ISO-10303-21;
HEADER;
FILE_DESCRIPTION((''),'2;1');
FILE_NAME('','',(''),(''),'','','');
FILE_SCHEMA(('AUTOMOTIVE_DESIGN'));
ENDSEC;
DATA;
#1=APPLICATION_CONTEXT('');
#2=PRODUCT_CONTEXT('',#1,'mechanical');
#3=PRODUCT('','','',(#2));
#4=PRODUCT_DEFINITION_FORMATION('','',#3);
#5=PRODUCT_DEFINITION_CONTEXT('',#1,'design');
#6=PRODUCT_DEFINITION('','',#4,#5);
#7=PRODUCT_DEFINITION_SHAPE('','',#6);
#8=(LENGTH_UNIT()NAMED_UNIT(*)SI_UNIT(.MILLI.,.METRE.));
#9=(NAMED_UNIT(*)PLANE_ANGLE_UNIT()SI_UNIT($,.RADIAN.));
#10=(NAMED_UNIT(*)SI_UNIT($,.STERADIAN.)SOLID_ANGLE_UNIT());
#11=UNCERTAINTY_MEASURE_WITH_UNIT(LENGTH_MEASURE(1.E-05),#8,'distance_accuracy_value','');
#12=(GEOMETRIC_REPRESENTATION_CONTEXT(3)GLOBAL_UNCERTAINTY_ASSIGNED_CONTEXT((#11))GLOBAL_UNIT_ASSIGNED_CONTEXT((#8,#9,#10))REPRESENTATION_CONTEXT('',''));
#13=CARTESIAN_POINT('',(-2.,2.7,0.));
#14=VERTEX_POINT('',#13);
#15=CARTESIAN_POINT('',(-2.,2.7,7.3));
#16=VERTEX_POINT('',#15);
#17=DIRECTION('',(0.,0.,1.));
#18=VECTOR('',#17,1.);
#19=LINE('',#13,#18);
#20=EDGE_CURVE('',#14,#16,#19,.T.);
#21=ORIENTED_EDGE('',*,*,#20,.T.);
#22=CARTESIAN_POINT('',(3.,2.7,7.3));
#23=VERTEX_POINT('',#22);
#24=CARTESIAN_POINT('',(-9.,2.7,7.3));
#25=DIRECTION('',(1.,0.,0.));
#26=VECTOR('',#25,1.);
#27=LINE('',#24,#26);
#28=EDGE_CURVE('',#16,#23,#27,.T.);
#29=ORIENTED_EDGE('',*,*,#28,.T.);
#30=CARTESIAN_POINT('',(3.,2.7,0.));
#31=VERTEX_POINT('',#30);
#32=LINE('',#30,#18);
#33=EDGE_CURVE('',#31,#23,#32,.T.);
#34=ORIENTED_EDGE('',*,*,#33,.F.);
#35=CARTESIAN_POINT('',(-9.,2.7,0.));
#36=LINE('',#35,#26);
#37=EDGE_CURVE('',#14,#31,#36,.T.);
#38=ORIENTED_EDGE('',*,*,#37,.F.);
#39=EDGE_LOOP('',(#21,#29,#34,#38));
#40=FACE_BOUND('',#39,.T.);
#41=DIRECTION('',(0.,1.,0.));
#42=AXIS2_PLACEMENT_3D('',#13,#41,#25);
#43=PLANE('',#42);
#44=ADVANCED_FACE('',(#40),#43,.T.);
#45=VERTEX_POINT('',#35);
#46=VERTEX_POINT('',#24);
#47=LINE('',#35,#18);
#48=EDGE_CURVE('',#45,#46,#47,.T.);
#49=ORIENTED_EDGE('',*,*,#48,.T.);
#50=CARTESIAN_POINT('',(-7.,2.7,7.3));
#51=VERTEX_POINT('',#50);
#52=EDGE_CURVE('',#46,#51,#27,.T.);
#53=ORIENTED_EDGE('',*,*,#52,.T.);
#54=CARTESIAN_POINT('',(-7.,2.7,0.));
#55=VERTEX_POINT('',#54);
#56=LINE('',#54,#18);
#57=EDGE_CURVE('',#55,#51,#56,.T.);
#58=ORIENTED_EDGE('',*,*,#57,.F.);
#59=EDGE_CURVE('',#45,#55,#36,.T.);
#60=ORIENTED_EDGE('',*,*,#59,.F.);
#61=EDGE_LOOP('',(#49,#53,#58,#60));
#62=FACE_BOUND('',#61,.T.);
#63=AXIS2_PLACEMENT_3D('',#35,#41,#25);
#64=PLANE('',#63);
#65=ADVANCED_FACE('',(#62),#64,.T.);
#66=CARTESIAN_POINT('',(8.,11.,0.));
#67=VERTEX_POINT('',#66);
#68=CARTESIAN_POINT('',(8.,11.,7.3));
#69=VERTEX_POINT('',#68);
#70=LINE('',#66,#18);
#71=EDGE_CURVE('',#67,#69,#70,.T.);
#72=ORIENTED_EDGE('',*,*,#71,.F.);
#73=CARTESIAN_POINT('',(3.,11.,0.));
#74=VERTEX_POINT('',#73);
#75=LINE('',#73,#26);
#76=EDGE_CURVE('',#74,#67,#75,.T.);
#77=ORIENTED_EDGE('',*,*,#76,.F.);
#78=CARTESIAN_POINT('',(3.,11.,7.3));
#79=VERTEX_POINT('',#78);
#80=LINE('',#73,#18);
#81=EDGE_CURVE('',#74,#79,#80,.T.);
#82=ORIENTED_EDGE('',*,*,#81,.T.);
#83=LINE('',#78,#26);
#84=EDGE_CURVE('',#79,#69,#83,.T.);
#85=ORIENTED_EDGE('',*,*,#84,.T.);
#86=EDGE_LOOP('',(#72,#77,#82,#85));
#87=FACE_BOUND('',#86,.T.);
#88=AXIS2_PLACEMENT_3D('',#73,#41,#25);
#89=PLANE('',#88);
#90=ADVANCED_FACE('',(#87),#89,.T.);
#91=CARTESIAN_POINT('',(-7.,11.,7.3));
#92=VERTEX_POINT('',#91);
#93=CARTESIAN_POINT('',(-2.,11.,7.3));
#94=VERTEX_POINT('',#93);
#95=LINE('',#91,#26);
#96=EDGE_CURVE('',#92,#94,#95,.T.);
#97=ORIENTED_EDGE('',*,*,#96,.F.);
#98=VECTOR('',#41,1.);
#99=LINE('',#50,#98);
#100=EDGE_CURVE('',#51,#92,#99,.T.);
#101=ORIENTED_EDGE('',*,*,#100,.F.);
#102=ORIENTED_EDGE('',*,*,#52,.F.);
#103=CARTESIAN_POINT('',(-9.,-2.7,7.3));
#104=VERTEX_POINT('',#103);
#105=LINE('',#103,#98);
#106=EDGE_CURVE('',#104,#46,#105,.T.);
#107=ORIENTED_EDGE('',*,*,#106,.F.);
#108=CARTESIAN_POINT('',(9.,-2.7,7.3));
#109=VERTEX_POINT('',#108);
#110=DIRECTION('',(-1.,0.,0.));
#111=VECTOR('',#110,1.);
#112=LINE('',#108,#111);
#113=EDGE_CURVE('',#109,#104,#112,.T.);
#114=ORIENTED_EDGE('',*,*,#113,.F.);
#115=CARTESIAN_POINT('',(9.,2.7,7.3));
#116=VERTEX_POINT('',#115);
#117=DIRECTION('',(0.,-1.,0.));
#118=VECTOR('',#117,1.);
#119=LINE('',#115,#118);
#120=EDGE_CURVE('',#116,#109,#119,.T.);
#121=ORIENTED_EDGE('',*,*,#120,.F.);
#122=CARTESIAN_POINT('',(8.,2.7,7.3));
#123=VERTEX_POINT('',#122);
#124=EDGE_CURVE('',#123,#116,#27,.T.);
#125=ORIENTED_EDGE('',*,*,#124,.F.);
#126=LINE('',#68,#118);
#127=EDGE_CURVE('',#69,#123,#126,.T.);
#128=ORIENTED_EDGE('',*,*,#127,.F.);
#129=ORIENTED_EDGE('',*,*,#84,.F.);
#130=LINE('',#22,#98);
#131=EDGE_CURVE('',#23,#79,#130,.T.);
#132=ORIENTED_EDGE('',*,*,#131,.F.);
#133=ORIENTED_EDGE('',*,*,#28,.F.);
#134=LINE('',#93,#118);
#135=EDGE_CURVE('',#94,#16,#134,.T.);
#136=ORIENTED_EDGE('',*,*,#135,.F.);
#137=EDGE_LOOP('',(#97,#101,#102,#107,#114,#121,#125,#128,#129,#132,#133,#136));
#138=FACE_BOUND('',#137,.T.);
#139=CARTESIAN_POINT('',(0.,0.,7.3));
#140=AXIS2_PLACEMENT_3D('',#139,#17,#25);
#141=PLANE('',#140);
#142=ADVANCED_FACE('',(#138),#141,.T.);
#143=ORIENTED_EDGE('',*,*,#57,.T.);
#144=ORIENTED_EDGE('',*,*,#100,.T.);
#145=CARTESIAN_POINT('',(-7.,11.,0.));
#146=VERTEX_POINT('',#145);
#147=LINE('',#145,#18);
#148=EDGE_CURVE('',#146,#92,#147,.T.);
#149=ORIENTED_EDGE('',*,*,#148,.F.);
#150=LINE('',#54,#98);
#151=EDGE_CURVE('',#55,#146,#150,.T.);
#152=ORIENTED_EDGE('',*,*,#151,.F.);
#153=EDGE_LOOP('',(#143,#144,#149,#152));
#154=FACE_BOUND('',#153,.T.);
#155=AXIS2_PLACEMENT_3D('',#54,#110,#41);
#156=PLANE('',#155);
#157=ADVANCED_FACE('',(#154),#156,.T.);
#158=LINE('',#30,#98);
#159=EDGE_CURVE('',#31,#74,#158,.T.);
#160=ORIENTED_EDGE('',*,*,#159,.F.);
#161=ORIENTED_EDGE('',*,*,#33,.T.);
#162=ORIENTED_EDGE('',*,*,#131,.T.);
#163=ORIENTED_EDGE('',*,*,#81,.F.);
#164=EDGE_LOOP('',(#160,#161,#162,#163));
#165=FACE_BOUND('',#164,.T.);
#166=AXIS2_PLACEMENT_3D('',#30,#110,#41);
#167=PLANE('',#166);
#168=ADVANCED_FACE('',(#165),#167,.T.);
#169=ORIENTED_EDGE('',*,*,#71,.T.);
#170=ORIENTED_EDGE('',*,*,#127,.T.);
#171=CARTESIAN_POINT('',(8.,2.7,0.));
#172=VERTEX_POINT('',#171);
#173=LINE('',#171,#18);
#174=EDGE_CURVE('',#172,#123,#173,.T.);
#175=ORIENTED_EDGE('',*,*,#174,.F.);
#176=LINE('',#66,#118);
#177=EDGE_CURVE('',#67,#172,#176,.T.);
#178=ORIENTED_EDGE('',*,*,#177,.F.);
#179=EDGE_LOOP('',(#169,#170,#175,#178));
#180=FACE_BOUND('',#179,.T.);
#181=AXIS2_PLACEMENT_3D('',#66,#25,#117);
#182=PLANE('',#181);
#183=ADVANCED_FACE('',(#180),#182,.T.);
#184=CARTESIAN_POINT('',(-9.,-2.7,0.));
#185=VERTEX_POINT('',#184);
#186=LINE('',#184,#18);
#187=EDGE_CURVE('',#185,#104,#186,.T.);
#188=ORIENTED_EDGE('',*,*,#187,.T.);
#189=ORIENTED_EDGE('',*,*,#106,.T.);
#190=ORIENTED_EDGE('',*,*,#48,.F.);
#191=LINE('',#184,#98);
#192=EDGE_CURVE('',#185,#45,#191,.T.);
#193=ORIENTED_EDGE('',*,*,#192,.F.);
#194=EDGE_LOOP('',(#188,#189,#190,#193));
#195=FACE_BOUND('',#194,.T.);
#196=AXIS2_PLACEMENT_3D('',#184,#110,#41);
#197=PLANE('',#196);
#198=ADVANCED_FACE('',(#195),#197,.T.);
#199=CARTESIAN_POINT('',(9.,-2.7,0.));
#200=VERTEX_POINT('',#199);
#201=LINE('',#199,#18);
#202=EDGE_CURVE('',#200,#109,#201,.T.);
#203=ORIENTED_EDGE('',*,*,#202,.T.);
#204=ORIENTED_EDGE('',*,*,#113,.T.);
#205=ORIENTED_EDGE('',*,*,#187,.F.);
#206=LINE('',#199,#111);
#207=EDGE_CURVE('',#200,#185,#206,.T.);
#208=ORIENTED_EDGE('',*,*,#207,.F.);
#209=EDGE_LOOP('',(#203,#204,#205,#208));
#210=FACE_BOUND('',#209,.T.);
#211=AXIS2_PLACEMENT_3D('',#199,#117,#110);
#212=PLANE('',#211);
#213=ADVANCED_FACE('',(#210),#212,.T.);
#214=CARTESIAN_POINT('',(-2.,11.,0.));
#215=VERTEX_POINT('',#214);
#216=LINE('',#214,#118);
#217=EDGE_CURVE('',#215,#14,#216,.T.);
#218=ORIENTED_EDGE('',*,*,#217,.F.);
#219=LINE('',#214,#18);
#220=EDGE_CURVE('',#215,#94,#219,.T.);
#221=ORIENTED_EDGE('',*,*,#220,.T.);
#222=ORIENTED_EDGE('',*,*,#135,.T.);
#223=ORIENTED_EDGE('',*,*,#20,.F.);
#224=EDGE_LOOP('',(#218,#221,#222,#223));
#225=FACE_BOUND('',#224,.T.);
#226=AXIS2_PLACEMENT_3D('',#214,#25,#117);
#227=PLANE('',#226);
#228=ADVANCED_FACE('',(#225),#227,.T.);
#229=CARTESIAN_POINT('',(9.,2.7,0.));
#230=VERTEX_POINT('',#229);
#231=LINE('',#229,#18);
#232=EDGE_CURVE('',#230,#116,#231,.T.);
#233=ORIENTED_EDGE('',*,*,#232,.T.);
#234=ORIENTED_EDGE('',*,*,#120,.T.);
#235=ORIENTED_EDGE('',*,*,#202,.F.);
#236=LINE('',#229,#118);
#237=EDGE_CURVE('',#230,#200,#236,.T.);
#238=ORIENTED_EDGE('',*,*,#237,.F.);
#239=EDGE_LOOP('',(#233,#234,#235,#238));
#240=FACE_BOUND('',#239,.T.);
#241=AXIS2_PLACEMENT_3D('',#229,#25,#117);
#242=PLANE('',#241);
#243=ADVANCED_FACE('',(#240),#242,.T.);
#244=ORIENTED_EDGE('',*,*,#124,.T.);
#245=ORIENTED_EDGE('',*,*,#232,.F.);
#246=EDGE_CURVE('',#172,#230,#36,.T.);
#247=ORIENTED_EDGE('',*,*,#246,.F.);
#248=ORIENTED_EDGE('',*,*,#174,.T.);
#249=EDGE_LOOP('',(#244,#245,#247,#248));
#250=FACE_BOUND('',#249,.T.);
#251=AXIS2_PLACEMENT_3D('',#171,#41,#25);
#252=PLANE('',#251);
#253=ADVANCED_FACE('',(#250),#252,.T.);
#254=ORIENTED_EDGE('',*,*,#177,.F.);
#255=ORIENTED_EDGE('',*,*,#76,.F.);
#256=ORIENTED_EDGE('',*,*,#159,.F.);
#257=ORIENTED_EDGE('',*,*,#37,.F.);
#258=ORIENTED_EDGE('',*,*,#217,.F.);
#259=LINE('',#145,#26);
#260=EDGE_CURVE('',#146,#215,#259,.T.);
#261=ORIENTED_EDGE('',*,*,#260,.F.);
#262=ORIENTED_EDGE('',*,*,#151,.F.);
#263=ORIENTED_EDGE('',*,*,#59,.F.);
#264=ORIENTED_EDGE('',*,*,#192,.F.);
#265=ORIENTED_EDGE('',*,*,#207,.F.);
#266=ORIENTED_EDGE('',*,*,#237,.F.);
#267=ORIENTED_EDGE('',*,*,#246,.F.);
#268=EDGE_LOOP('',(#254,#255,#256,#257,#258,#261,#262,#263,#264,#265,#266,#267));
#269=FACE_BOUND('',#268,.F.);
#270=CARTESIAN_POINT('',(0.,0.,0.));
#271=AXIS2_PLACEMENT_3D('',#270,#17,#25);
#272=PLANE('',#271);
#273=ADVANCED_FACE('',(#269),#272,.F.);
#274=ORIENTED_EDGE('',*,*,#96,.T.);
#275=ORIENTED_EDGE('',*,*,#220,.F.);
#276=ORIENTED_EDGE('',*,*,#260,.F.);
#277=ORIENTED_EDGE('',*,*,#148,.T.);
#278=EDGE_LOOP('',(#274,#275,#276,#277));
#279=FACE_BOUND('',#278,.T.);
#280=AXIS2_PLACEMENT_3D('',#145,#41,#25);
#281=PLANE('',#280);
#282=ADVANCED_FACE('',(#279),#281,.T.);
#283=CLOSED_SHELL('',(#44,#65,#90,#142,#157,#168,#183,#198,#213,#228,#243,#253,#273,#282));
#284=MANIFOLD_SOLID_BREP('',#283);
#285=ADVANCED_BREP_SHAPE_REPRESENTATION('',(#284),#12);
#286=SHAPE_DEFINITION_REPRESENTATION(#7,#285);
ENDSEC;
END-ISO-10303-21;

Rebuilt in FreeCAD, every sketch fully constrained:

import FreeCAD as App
import Part
import Sketcher
from FreeCAD import Vector
Q = App.Units.Quantity

doc = App.newDocument("Part")
body = doc.addObject("PartDesign::Body", "Body")

sketch1 = body.newObject("Sketcher::SketchObject", "Sketch")
sketch1.AttachmentSupport = (doc.getObject("XY_Plane"), [""])
sketch1.MapMode = "FlatFace"
sketch1.addGeometry([
    Part.LineSegment(Vector(-7, 2.7, 0), Vector(-9, 2.7, 0)),
    Part.LineSegment(Vector(-9, 2.7, 0), Vector(-9, -2.7, 0)),
    Part.LineSegment(Vector(-9, -2.7, 0), Vector(9, -2.7, 0)),
    Part.LineSegment(Vector(9, -2.7, 0), Vector(9, 2.7, 0)),
    Part.LineSegment(Vector(9, 2.7, 0), Vector(8, 2.7, 0)),
    Part.LineSegment(Vector(8, 2.7, 0), Vector(8, 11, 0)),
    Part.LineSegment(Vector(8, 11, 0), Vector(3, 11, 0)),
    Part.LineSegment(Vector(3, 11, 0), Vector(3, 2.7, 0)),
    Part.LineSegment(Vector(3, 2.7, 0), Vector(-2, 2.7, 0)),
    Part.LineSegment(Vector(-2, 2.7, 0), Vector(-2, 11, 0)),
    Part.LineSegment(Vector(-2, 11, 0), Vector(-7, 11, 0)),
    Part.LineSegment(Vector(-7, 11, 0), Vector(-7, 2.7, 0)),
], False)
sketch1.addConstraint([
    Sketcher.Constraint("Coincident", 0, 2, 1, 1),
    Sketcher.Constraint("Coincident", 1, 2, 2, 1),
    Sketcher.Constraint("Coincident", 2, 2, 3, 1),
    Sketcher.Constraint("Coincident", 3, 2, 4, 1),
    Sketcher.Constraint("Coincident", 4, 2, 5, 1),
    Sketcher.Constraint("Coincident", 5, 2, 6, 1),
    Sketcher.Constraint("Coincident", 6, 2, 7, 1),
    Sketcher.Constraint("Coincident", 7, 2, 8, 1),
    Sketcher.Constraint("Coincident", 8, 2, 9, 1),
    Sketcher.Constraint("Coincident", 9, 2, 10, 1),
    Sketcher.Constraint("Coincident", 10, 2, 11, 1),
    Sketcher.Constraint("Coincident", 11, 2, 0, 1),
    Sketcher.Constraint("Horizontal", 0),
    Sketcher.Constraint("Vertical", 1),
    Sketcher.Constraint("Horizontal", 2),
    Sketcher.Constraint("Vertical", 3),
    Sketcher.Constraint("Horizontal", 4),
    Sketcher.Constraint("Vertical", 5),
    Sketcher.Constraint("Horizontal", 6),
    Sketcher.Constraint("Vertical", 7),
    Sketcher.Constraint("Horizontal", 8),
    Sketcher.Constraint("Vertical", 9),
    Sketcher.Constraint("Horizontal", 10),
    Sketcher.Constraint("Vertical", 11),
    Sketcher.Constraint("Symmetric", 0, 2, 2, 2, -1, 1),
    Sketcher.Constraint("Horizontal", 0, 2, 3, 2),
    Sketcher.Constraint("Horizontal", 4, 2, 7, 2),
    Sketcher.Constraint("Horizontal", 6, 2, 9, 2),
    Sketcher.Constraint("Equal", 6, 8),
    Sketcher.Constraint("Equal", 8, 10),
    Sketcher.Constraint("DistanceX", 2, 1, 2, 2, Q("18 mm")),
    Sketcher.Constraint("DistanceX", 4, 2, 4, 1, Q("1 mm")),
    Sketcher.Constraint("DistanceX", 6, 2, 6, 1, Q("5 mm")),
    Sketcher.Constraint("DistanceY", 1, 2, 1, 1, Q("5.4 mm")),
    Sketcher.Constraint("DistanceY", 5, 1, 5, 2, Q("8.3 mm")),
])
pad1 = body.newObject("PartDesign::Pad", "Pad")
pad1.Profile = sketch1
pad1.Length = 7.3

doc.recompute()
